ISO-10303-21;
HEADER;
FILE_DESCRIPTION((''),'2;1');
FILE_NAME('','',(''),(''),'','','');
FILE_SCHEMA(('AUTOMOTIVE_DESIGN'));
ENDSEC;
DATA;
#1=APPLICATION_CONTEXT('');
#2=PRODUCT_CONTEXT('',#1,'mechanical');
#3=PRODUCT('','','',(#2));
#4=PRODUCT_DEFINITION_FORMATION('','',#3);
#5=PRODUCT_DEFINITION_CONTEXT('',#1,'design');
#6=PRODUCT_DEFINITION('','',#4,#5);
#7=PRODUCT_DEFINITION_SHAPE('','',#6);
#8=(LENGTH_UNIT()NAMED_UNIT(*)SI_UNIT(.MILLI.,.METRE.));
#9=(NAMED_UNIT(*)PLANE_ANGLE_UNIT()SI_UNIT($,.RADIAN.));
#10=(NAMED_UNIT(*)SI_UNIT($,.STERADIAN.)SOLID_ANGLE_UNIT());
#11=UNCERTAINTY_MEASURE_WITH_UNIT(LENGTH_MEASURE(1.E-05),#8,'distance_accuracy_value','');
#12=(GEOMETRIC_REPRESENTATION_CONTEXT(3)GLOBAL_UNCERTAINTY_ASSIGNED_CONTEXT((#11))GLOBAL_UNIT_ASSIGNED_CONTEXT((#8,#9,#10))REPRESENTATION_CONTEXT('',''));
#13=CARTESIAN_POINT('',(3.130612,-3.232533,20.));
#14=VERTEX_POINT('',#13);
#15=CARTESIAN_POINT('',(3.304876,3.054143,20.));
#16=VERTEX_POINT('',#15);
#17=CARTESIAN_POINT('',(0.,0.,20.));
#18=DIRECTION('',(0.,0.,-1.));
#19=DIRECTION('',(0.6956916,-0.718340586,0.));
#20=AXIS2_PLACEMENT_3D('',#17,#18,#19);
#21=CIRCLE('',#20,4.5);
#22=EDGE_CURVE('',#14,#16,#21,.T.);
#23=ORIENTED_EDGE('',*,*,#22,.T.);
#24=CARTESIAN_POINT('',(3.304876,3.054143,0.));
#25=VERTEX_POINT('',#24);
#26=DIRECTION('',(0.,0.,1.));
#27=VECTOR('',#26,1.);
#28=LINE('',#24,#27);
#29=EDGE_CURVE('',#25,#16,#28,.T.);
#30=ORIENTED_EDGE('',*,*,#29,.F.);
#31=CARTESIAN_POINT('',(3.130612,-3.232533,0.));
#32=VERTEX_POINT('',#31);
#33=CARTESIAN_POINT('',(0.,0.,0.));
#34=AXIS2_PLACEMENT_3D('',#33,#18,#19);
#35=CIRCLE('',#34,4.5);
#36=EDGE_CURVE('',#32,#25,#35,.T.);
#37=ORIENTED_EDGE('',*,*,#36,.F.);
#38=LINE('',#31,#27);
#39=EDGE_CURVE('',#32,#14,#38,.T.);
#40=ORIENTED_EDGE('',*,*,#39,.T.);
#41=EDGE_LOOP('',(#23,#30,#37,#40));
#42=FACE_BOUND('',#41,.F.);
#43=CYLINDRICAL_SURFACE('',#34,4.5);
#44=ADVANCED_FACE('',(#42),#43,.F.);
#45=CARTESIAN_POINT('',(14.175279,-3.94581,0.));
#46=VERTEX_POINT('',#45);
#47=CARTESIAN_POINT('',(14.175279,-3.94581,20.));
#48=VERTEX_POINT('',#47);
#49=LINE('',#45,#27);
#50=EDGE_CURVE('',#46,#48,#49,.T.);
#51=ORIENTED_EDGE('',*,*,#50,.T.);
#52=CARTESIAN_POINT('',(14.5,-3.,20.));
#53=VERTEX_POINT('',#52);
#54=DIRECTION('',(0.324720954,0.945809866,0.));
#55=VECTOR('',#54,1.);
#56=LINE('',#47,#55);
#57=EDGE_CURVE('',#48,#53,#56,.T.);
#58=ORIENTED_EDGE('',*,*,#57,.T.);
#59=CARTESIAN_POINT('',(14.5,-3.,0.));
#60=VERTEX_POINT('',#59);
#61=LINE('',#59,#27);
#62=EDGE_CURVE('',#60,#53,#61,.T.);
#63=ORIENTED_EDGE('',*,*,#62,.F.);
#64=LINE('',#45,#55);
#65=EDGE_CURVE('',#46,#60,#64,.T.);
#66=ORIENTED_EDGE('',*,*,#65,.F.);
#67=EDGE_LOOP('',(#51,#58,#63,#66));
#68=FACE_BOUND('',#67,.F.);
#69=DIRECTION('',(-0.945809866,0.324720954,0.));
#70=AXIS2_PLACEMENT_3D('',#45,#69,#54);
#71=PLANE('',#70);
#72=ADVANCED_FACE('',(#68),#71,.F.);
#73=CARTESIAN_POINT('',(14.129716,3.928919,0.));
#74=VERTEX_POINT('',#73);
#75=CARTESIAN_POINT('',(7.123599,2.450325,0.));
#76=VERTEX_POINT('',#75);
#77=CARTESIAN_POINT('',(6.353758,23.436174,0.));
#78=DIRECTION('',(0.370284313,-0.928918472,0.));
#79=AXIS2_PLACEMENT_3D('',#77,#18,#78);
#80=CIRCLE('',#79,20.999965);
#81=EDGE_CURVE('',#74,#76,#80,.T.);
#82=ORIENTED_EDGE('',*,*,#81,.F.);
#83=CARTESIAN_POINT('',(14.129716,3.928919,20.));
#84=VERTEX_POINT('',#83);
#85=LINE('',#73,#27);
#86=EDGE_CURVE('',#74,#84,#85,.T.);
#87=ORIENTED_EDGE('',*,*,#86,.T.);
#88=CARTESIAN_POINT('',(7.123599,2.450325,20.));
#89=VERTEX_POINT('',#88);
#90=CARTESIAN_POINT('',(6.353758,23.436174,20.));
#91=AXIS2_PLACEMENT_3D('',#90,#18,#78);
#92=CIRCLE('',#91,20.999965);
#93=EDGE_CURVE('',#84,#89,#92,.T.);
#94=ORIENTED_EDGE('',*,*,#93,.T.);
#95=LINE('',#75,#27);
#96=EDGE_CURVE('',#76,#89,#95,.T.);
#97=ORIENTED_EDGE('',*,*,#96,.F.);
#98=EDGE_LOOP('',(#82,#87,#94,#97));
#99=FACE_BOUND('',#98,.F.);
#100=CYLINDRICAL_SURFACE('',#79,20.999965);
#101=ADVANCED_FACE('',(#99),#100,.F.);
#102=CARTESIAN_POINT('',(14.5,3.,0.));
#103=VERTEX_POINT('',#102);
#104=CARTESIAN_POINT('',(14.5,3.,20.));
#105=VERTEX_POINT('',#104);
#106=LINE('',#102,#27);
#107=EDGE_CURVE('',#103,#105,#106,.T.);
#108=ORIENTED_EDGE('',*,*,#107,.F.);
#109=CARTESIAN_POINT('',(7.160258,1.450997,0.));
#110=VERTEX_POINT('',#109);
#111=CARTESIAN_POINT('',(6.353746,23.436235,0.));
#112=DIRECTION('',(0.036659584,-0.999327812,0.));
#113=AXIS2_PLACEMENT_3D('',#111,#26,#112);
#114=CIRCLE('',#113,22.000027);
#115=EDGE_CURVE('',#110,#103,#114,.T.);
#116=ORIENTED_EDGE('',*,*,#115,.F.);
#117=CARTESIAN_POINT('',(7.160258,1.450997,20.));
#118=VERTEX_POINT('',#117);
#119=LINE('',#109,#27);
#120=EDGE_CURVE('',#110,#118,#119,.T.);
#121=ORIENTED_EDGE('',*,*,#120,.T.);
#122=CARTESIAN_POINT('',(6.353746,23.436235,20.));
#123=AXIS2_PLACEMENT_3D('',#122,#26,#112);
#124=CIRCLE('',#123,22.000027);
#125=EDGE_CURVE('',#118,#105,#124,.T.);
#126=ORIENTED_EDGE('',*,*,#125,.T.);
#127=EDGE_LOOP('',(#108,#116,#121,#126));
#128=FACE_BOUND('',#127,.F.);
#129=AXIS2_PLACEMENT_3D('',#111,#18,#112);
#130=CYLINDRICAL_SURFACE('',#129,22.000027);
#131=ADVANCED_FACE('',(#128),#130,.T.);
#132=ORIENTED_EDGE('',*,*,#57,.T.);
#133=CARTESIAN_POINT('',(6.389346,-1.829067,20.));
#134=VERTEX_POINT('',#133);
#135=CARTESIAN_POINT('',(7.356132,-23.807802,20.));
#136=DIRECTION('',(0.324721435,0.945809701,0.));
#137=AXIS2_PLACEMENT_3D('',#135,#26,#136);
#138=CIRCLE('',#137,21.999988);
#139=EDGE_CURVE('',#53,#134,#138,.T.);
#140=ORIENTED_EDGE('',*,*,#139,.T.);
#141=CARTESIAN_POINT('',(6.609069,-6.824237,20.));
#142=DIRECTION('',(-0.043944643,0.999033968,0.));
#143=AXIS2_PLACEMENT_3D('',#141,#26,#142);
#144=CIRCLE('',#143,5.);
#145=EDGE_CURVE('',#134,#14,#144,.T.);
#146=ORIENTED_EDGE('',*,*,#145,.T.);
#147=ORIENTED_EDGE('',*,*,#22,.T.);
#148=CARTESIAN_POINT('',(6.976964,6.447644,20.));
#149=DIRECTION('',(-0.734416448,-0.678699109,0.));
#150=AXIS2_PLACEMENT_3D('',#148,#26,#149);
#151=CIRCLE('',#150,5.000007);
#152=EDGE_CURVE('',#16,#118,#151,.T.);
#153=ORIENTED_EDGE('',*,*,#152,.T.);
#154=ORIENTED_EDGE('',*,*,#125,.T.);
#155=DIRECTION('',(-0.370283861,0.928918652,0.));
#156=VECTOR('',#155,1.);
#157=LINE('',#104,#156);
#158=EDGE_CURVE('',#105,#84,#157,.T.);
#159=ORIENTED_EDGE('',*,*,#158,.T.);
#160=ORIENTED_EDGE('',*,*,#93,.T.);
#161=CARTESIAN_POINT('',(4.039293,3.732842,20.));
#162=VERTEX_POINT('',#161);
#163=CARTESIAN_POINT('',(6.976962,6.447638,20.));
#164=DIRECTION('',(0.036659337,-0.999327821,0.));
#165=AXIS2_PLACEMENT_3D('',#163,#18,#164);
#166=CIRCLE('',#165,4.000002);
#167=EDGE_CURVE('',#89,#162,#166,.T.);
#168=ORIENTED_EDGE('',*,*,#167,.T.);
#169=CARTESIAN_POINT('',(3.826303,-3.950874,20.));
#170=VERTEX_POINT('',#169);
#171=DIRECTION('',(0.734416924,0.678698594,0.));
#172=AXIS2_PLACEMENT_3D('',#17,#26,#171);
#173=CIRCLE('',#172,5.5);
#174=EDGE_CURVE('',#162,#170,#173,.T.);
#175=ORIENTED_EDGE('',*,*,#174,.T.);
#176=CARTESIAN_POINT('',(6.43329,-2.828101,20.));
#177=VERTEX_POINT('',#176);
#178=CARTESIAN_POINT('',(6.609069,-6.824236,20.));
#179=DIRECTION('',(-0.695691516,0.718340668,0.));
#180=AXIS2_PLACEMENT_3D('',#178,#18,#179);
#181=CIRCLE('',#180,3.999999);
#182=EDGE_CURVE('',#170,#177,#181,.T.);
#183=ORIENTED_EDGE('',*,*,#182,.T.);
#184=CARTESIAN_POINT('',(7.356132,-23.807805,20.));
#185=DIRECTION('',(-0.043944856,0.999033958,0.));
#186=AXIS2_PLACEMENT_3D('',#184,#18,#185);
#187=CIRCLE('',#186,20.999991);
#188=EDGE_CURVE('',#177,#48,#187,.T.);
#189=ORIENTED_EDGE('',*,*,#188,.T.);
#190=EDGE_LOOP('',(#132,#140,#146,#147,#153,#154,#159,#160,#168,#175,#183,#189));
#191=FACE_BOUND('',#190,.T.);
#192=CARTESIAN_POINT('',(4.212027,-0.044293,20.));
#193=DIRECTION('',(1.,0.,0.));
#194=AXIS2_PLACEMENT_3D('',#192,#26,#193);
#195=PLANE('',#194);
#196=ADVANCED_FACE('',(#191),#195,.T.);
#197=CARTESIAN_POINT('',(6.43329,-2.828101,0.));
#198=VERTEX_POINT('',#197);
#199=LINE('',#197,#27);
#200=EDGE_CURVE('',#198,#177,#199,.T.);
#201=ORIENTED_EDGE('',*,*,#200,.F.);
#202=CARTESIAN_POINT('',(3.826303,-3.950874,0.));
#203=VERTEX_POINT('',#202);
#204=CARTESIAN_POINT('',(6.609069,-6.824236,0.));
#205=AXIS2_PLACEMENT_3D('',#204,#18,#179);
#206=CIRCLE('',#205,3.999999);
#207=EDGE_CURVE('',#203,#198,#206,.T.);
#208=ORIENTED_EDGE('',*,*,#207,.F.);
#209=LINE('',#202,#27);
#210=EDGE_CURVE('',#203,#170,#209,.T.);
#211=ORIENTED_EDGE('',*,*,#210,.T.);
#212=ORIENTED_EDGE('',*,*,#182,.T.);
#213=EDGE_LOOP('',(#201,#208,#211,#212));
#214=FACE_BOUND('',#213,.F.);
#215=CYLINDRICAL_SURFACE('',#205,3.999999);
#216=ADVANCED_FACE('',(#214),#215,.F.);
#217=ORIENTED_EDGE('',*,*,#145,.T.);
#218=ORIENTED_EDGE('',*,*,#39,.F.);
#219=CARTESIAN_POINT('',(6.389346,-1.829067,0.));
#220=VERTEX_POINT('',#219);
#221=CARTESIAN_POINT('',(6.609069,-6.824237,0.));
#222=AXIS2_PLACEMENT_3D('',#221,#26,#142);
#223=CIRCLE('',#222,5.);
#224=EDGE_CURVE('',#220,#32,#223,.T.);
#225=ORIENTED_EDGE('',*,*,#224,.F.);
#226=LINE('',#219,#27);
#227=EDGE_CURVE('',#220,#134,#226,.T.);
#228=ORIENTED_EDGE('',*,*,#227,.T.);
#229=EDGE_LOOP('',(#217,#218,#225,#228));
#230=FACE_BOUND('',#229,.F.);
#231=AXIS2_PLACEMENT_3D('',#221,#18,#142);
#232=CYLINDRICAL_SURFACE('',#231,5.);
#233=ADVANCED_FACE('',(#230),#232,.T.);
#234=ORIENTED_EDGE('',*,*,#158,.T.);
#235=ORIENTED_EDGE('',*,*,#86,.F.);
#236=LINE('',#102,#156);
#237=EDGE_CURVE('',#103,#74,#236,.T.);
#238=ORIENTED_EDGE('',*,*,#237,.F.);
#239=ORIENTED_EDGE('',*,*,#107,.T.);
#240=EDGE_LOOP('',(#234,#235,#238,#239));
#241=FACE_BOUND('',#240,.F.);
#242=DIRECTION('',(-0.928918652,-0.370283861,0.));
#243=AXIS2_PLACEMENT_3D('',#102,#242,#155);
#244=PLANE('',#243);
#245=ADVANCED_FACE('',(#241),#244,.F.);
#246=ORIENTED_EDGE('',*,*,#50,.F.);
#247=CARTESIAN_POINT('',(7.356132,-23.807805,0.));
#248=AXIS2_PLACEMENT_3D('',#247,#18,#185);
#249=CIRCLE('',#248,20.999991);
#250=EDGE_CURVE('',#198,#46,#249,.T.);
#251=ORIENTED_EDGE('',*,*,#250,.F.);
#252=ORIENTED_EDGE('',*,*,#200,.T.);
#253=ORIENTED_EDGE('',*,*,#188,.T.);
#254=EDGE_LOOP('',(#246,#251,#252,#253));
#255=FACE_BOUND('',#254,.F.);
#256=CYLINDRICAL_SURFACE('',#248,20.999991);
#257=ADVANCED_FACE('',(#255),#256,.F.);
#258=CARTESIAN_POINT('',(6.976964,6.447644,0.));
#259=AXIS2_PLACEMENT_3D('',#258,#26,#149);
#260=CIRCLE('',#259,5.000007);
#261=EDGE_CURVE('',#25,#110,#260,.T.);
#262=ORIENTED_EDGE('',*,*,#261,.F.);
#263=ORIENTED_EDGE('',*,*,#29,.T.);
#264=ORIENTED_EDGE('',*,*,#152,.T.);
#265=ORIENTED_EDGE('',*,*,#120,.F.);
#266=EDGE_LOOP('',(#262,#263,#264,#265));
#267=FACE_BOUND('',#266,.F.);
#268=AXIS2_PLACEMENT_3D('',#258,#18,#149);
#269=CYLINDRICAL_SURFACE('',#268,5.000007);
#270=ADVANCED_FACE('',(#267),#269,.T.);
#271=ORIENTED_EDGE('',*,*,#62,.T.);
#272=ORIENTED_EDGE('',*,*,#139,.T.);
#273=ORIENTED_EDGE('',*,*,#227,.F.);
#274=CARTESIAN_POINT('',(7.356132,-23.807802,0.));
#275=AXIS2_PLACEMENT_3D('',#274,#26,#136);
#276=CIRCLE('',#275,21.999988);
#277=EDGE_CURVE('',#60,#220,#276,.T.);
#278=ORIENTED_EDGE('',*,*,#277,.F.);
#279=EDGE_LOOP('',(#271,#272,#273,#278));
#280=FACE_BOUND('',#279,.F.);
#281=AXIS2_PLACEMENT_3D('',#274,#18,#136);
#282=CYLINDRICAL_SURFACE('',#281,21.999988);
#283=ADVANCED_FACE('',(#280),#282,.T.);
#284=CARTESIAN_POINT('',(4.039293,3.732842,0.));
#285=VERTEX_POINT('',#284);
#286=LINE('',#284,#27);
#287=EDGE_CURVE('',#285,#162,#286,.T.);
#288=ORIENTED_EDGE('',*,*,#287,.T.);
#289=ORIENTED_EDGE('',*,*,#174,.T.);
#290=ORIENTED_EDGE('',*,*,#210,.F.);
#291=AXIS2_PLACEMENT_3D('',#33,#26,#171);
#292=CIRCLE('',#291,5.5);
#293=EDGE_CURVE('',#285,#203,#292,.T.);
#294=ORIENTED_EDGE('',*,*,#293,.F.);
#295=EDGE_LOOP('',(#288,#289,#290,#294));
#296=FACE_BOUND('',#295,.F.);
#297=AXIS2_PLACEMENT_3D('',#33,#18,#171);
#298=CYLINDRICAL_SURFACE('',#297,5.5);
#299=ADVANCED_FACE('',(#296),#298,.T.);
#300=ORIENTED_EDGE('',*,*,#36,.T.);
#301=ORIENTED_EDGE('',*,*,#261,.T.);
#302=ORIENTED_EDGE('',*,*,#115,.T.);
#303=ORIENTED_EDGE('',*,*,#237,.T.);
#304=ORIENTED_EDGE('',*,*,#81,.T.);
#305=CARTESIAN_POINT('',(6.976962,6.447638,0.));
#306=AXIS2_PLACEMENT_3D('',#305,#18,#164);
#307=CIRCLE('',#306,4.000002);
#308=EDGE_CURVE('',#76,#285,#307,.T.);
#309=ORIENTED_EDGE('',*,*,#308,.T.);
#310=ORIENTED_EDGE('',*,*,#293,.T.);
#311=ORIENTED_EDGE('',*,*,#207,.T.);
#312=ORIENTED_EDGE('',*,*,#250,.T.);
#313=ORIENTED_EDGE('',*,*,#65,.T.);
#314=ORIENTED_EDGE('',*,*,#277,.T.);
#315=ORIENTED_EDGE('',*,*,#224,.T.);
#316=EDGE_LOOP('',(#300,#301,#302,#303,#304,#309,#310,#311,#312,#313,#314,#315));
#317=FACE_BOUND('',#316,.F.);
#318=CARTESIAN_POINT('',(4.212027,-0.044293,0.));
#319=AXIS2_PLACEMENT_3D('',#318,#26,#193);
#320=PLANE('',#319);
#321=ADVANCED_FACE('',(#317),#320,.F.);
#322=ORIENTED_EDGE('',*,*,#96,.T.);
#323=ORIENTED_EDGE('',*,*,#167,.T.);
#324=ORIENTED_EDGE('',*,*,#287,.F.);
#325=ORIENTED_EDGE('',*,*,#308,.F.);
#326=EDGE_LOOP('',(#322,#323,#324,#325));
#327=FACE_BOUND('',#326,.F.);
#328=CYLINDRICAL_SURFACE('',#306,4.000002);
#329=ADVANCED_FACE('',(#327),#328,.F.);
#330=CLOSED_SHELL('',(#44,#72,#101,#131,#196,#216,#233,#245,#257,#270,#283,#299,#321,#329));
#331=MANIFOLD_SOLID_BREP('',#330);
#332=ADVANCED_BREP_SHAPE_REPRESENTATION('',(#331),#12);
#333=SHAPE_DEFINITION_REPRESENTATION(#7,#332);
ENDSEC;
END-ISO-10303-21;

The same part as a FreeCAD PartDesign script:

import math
import FreeCAD as App
import Part
import Sketcher

V = App.Vector
Q = App.Units.Quantity

doc = App.newDocument("Part")
params = doc.addObject("Spreadsheet::Sheet", "Params")
for row, (alias, value) in enumerate([
    ("sketch1_radius", "4.000002 mm"),
    ("sketch1_radius2", "3.999999 mm"),
    ("sketch1_radius3", "5 mm"),
    ("sketch1_radius4", "4.5 mm"),
    ("pad1_length", "20 mm"),
], start=1):
    params.set(f"A{row}", alias)
    params.set(f"B{row}", "=" + value)
    params.setAlias(f"B{row}", alias)

body = doc.addObject("PartDesign::Body", "Body")

# Sketch on XY plane
sketch1 = doc.addObject("Sketcher::SketchObject", "Sketch")
body.addObject(sketch1)
sketch1.AttachmentSupport = (doc.XY_Plane, [""])
sketch1.MapMode = "FlatFace"
sketch1.addGeometry([
    Part.ArcOfCircle(Part.Circle(V(0, 0, 0), V(0, 0, 1), 4.5), math.radians(42.742029), math.radians(314.082354)),  # 0
    Part.ArcOfCircle(Part.Circle(V(6.976964, 6.447644, 0), V(0, 0, 1), 5.000007), math.radians(-137.25793), math.radians(-87.899133)),  # 1
    Part.ArcOfCircle(Part.Circle(V(6.353746, 23.436235, 0), V(0, 0, 1), 22.000027), math.radians(-87.89909), math.radians(-68.266878)),  # 2
    Part.LineSegment(V(14.5, 3, 0), V(14.129716, 3.928919, 0)),  # 3
    Part.ArcOfCircle(Part.Circle(V(6.353758, 23.436174, 0), V(0, 0, 1), 20.999965), math.radians(-87.899116), math.radians(-68.266847)),  # 4
    Part.ArcOfCircle(Part.Circle(V(6.976962, 6.447638, 0), V(0, 0, 1), 4.000002), math.radians(-137.25796), math.radians(-87.899104)),  # 5
    Part.ArcOfCircle(Part.Circle(V(0, 0, 0), V(0, 0, 1), 5.5), math.radians(42.74203), math.radians(314.082344)),  # 6
    Part.ArcOfCircle(Part.Circle(V(6.609069, -6.824236, 0), V(0, 0, 1), 3.999999), math.radians(92.518654), math.radians(134.082348)),  # 7
    Part.ArcOfCircle(Part.Circle(V(7.356132, -23.807805, 0), V(0, 0, 1), 20.999991), math.radians(71.0513), math.radians(92.518666)),  # 8
    Part.LineSegment(V(14.175279, -3.94581, 0), V(14.5, -3, 0)),  # 9
    Part.ArcOfCircle(Part.Circle(V(7.356132, -23.807802, 0), V(0, 0, 1), 21.999988), math.radians(71.051301), math.radians(92.518666)),  # 10
    Part.ArcOfCircle(Part.Circle(V(6.609069, -6.824237, 0), V(0, 0, 1), 5), math.radians(92.518654), math.radians(134.082338)),  # 11
], False)
sketch1.addConstraint([
    Sketcher.Constraint("Tangent", 0, 1, 1, 1),
    Sketcher.Constraint("Tangent", 1, 2, 2, 1),
    Sketcher.Constraint("Coincident", 2, 2, 3, 1),
    Sketcher.Constraint("Coincident", 3, 2, 4, 2),
    Sketcher.Constraint("Tangent", 4, 1, 5, 2),
    Sketcher.Constraint("Tangent", 5, 1, 6, 1),
    Sketcher.Constraint("Tangent", 6, 2, 7, 2),
    Sketcher.Constraint("Tangent", 7, 1, 8, 2),
    Sketcher.Constraint("Coincident", 8, 1, 9, 1),
    Sketcher.Constraint("Coincident", 9, 2, 10, 1),
    Sketcher.Constraint("Tangent", 10, 2, 11, 1),
    Sketcher.Constraint("Tangent", 11, 2, 0, 2),
    Sketcher.Constraint("Coincident", 0, 3, -1, 1),
    Sketcher.Constraint("Coincident", 6, 3, -1, 1),
    Sketcher.Constraint("Coincident", 5, 3, 1, 3),
    Sketcher.Constraint("Coincident", 10, 3, 8, 3),
    Sketcher.Constraint("Coincident", 11, 3, 7, 3),
    Sketcher.Constraint("Symmetric", 2, 2, 9, 2, -1),
    Sketcher.Constraint("Equal", 3, 9),
    Sketcher.Constraint("Radius", 5, Q("4.000002 mm")),
    Sketcher.Constraint("Radius", 7, Q("3.999999 mm")),
    Sketcher.Constraint("Radius", 11, Q("5 mm")),
    Sketcher.Constraint("Radius", 0, Q("4.5 mm")),
    Sketcher.Constraint("DistanceY", -1, 1, 2, 2, Q("3 mm")),
    Sketcher.Constraint("DistanceX", -1, 1, 2, 2, Q("14.5 mm")),
    Sketcher.Constraint("Radius", 8, Q("20.999991 mm")),
    Sketcher.Constraint("Radius", 2, Q("22.000027 mm")),
    Sketcher.Constraint("Radius", 4, Q("20.999965 mm")),
    Sketcher.Constraint("DistanceY", 10, 3, -1, 1, Q("23.807802 mm")),
    Sketcher.Constraint("DistanceX", -1, 1, 4, 1, Q("7.123599 mm")),
    Sketcher.Constraint("DistanceY", -1, 1, 3, 2, Q("3.928919 mm")),
    Sketcher.Constraint("DistanceX", -1, 1, 8, 1, Q("14.175279 mm")),
])
sketch1.setExpression("Constraints[19]", "Params.sketch1_radius")
sketch1.setExpression("Constraints[20]", "Params.sketch1_radius2")
sketch1.setExpression("Constraints[21]", "Params.sketch1_radius3")
sketch1.setExpression("Constraints[22]", "Params.sketch1_radius4")
pad1 = doc.addObject("PartDesign::Pad", "Pad")
body.addObject(pad1)
pad1.Profile = sketch1
pad1.setExpression("Length", "Params.pad1_length")

doc.recompute()
